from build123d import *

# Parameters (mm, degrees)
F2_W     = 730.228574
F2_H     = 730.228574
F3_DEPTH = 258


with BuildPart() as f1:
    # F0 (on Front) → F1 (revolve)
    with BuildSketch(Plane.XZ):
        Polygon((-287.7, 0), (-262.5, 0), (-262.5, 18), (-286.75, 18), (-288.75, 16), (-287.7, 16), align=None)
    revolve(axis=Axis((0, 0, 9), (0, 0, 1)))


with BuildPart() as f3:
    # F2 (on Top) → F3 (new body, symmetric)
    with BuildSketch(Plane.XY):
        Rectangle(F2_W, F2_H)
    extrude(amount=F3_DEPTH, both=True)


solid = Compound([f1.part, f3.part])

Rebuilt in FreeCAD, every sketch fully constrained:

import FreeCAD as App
import Part
import Sketcher

V = App.Vector
Q = App.Units.Quantity

doc = App.newDocument("Part")
body = doc.addObject("PartDesign::Body", "Body")

# Sketch on XZ plane
sketch1 = body.newObject("Sketcher::SketchObject", "Sketch")
sketch1.AttachmentSupport = (doc.getObject("XZ_Plane"), [""])
sketch1.MapMode = "FlatFace"
sketch1.addGeometry([
    Part.LineSegment(V(-287.7, 0, 0), V(-262.5, 0, 0)),  # 0
    Part.LineSegment(V(-262.5, 0, 0), V(-262.5, 18, 0)),  # 1
    Part.LineSegment(V(-262.5, 18, 0), V(-286.75, 18, 0)),  # 2
    Part.LineSegment(V(-286.75, 18, 0), V(-288.75, 16, 0)),  # 3
    Part.LineSegment(V(-288.75, 16, 0), V(-287.7, 16, 0)),  # 4
    Part.LineSegment(V(-287.7, 16, 0), V(-287.7, 0, 0)),  # 5
], False)
sketch1.addConstraint([
    Sketcher.Constraint("Coincident", 0, 2, 1, 1),
    Sketcher.Constraint("Coincident", 1, 2, 2, 1),
    Sketcher.Constraint("Coincident", 2, 2, 3, 1),
    Sketcher.Constraint("Coincident", 3, 2, 4, 1),
    Sketcher.Constraint("Coincident", 4, 2, 5, 1),
    Sketcher.Constraint("Coincident", 5, 2, 0, 1),
    Sketcher.Constraint("Horizontal", 0),
    Sketcher.Constraint("Vertical", 1),
    Sketcher.Constraint("Horizontal", 2),
    Sketcher.Constraint("Horizontal", 4),
    Sketcher.Constraint("Vertical", 5),
    Sketcher.Constraint("PointOnObject", 0, 2, -1),
    Sketcher.Constraint("DistanceY", 1, 1, 1, 2, 18.0),
    Sketcher.Constraint("DistanceY", 5, 2, 5, 1, 16.0),
    Sketcher.Constraint("Angle", 3, Q("-135 deg")),
    Sketcher.Constraint("DistanceX", 0, 1, 0, 2, 25.2),
    Sketcher.Constraint("DistanceX", 2, 2, 2, 1, 24.25),
    Sketcher.Constraint("DistanceX", 0, 2, -1, 1, 262.5),
])
revolution = body.newObject("PartDesign::Revolution", "Revolution")
revolution.Profile = sketch1
revolution.ReferenceAxis = (sketch1, ["V_Axis"])
revolution.Angle = 360
body2 = doc.addObject("PartDesign::Body", "Body001")

# Sketch on XY plane
sketch2 = body2.newObject("Sketcher::SketchObject", "Sketch001")
sketch2.AttachmentSupport = (doc.getObject("XY_Plane001"), [""])
sketch2.MapMode = "FlatFace"
sketch2.addGeometry([
    Part.LineSegment(V(-365.114287, 365.114287, 0), V(-365.114287, -365.114287, 0)),
    Part.LineSegment(V(-365.114287, -365.114287, 0), V(365.114287, -365.114287, 0)),
    Part.LineSegment(V(365.114287, -365.114287, 0), V(365.114287, 365.114287, 0)),
    Part.LineSegment(V(365.114287, 365.114287, 0), V(-365.114287, 365.114287, 0)),
], False)
sketch2.addConstraint([
    Sketcher.Constraint("Coincident", 0, 2, 1, 1),
    Sketcher.Constraint("Coincident", 1, 2, 2, 1),
    Sketcher.Constraint("Coincident", 2, 2, 3, 1),
    Sketcher.Constraint("Coincident", 3, 2, 0, 1),
    Sketcher.Constraint("Vertical", 0),
    Sketcher.Constraint("Horizontal", 1),
    Sketcher.Constraint("Vertical", 2),
    Sketcher.Constraint("Horizontal", 3),
    Sketcher.Constraint("Symmetric", 0, 2, 2, 2, -1, 1),
    Sketcher.Constraint("Equal", 3, 0),
    Sketcher.Constraint("DistanceX", 1, 1, 1, 2, 730.228574),
])
pad1 = body2.newObject("PartDesign::Pad", "Pad")
pad1.Profile = sketch2
pad1.Length = 516
pad1.Midplane = True

doc.recompute()
